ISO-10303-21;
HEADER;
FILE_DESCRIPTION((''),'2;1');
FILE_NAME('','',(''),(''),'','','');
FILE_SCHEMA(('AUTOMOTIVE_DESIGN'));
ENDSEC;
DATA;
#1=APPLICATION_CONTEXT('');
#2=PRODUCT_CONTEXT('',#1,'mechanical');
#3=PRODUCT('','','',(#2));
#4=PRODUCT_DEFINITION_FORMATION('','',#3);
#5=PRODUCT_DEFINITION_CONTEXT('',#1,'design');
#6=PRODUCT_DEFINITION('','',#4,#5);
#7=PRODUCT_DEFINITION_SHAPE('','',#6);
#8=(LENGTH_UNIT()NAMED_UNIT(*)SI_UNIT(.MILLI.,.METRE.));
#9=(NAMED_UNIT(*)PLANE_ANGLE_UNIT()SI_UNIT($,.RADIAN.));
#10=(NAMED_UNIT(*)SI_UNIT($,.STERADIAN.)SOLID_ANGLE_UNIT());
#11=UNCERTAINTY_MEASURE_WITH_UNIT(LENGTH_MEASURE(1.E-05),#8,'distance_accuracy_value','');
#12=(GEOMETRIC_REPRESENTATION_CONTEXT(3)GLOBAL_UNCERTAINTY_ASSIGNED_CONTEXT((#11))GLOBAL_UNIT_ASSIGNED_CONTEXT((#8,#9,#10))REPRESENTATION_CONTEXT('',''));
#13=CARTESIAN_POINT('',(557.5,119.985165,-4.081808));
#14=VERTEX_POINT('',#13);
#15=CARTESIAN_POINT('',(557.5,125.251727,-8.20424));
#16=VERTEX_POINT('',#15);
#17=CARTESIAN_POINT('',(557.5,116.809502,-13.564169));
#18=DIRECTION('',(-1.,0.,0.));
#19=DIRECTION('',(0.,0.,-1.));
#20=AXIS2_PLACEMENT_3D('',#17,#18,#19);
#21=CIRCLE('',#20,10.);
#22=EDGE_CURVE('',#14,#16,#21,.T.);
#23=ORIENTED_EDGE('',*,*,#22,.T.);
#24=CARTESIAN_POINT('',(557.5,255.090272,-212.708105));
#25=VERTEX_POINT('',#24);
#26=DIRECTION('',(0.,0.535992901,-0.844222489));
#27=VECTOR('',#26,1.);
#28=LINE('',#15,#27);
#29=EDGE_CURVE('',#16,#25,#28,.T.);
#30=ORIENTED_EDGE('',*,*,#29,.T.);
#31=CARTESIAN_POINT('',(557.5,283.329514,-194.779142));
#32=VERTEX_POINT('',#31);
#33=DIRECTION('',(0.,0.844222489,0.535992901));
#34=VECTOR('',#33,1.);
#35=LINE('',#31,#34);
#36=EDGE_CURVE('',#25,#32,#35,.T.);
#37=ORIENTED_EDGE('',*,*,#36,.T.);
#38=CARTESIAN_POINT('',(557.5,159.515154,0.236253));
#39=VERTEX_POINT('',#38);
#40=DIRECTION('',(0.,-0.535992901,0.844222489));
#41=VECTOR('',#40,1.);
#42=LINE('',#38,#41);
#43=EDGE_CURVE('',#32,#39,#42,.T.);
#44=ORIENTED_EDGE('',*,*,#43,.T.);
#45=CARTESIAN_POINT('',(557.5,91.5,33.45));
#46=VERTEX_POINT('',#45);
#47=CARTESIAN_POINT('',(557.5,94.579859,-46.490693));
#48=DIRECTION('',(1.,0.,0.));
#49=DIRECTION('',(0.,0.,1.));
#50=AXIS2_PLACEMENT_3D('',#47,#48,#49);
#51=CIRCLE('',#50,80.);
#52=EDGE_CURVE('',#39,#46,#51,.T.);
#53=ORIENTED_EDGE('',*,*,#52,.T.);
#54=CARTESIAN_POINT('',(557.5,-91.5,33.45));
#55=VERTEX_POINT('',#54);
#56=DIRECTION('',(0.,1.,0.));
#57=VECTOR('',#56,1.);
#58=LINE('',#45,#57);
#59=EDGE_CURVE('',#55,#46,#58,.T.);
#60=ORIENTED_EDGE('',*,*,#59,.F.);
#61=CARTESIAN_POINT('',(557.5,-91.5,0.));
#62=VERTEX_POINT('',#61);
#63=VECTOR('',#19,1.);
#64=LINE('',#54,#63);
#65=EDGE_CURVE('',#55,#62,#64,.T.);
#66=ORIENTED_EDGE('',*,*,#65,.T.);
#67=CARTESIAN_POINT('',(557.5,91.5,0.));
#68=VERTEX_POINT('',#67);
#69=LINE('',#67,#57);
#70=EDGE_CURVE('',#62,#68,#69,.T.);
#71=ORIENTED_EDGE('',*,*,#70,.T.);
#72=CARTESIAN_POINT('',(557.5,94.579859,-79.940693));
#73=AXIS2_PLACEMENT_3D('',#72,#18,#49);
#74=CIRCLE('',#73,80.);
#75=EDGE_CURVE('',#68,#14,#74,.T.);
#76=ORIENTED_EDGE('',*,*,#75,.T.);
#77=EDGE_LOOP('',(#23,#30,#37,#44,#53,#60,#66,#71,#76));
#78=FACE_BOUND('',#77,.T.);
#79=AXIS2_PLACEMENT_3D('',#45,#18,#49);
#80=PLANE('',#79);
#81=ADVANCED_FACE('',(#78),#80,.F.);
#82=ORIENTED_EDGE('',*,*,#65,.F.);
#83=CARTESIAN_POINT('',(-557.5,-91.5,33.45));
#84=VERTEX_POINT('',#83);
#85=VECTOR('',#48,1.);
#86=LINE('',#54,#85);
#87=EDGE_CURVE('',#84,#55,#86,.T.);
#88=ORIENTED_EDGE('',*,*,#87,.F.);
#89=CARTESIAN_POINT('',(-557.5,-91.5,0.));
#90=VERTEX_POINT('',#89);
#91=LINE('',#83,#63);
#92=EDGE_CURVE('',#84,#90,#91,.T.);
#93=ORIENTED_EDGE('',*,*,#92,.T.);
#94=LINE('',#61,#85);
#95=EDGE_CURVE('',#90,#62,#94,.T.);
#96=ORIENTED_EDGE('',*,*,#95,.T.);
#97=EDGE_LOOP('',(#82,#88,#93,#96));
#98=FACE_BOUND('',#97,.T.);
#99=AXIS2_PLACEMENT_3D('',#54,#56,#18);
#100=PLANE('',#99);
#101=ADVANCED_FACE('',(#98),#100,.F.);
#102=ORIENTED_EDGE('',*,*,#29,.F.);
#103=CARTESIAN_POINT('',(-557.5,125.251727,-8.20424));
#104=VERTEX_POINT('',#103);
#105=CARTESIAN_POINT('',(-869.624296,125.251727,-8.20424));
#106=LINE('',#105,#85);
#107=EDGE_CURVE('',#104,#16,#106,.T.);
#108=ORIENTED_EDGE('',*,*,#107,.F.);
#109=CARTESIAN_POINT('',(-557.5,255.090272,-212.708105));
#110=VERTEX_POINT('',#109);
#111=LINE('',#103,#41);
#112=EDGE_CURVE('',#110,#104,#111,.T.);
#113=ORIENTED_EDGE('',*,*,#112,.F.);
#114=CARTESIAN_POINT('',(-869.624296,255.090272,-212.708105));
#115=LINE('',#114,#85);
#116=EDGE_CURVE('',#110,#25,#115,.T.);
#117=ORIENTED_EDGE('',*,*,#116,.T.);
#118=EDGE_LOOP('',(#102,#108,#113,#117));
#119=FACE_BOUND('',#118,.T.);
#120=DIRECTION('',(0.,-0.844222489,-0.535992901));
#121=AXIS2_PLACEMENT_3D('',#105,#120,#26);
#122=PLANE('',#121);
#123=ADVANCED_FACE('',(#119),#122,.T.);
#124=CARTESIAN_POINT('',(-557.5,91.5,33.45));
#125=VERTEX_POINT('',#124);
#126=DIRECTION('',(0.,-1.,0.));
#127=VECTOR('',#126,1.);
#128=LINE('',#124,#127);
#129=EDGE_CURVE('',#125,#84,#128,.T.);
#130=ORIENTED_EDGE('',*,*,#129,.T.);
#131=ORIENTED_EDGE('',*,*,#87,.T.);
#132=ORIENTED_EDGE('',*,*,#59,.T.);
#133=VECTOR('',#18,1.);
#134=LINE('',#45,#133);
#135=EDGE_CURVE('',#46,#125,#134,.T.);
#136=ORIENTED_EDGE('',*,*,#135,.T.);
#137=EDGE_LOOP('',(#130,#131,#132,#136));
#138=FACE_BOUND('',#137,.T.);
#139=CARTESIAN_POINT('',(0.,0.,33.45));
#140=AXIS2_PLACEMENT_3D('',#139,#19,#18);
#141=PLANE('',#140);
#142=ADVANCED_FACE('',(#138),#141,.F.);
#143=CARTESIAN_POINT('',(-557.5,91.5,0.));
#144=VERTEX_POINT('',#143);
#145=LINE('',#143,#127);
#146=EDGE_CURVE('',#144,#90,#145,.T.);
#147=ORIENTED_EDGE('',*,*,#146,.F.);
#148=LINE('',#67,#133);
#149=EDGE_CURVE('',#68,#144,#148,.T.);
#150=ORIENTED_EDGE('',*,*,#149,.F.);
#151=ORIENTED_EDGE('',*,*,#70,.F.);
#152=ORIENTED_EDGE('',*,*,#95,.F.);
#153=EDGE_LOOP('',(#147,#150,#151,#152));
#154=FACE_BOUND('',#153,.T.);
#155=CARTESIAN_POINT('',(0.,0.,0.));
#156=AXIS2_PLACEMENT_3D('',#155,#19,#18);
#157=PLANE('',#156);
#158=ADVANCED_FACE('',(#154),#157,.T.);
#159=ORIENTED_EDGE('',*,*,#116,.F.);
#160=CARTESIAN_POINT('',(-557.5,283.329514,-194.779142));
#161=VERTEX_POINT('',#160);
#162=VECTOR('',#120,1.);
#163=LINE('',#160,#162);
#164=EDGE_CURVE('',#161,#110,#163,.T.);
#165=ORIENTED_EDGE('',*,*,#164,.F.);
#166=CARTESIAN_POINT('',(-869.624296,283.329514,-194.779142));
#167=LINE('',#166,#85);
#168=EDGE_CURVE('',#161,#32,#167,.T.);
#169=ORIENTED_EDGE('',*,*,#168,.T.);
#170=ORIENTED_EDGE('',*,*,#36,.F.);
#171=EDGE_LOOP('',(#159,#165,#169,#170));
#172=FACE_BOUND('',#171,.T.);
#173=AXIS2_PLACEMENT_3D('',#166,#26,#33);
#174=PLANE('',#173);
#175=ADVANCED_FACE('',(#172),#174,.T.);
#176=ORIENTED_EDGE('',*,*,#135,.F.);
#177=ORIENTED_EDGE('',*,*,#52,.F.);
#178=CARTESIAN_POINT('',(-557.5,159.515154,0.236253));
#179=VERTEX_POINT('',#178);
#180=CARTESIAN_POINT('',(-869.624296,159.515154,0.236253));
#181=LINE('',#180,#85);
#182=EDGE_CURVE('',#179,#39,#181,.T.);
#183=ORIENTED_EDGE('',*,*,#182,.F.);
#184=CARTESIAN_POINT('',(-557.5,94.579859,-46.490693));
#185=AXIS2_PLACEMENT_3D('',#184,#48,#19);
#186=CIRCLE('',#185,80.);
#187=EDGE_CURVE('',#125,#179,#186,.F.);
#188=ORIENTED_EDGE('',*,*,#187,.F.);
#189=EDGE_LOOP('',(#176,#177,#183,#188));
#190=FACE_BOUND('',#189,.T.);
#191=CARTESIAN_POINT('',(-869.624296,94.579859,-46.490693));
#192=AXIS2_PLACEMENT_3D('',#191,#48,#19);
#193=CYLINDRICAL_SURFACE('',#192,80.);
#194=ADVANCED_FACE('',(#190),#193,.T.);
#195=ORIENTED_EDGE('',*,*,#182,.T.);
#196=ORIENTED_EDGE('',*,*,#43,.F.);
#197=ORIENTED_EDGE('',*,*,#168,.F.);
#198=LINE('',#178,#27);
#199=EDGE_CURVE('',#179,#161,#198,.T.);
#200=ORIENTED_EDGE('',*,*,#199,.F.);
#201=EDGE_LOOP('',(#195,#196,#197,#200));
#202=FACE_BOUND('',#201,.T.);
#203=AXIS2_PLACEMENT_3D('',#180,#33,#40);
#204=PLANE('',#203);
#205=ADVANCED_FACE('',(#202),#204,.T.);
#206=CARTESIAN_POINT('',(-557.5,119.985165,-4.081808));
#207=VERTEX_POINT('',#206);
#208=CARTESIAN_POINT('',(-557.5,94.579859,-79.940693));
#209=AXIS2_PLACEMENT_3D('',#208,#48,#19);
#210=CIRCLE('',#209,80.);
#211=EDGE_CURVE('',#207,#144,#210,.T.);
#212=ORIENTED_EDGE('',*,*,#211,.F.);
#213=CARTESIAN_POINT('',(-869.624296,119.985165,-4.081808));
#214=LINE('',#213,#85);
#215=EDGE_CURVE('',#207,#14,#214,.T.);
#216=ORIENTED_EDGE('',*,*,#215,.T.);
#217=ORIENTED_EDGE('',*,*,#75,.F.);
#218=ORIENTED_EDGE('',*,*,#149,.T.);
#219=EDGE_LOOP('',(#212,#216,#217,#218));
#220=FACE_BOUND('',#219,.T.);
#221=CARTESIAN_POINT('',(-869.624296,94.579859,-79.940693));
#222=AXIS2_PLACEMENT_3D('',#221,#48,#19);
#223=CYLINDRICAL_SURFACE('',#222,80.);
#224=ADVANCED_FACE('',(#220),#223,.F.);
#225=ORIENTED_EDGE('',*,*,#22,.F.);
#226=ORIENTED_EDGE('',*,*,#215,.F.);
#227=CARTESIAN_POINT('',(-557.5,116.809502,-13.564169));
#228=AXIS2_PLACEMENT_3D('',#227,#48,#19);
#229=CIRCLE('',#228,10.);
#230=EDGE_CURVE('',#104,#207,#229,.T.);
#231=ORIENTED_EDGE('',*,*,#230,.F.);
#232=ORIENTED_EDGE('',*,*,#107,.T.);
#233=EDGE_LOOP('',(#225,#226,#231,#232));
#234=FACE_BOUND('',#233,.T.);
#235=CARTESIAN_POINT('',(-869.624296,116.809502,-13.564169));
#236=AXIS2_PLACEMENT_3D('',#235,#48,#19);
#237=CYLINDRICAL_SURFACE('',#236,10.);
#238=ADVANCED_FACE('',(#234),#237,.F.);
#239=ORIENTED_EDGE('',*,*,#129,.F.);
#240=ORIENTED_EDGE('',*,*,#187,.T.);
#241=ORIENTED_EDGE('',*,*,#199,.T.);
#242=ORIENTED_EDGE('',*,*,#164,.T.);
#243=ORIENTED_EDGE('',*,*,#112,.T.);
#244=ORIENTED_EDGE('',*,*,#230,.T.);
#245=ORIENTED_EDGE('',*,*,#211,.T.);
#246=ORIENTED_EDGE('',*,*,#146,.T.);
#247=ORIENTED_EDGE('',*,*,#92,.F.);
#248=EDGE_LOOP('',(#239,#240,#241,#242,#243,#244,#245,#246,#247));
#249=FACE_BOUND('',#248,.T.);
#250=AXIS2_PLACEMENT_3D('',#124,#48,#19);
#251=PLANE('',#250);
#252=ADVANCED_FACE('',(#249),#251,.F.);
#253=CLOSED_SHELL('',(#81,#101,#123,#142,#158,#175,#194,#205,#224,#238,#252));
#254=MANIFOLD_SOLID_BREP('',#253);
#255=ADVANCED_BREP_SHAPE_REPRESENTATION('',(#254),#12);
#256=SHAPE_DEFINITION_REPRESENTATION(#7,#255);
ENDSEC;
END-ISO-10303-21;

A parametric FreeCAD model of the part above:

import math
import FreeCAD as App
import Part
import Sketcher

V = App.Vector


def add_polygon(sketch, points):
    """Adds a closed chain of lines whose ends are joined by coincident constraints."""
    first, n = sketch.GeometryCount, len(points)
    for a, b in zip(points, points[1:] + points[:1]):
        sketch.addGeometry(Part.LineSegment(App.Vector(*a, 0), App.Vector(*b, 0)), False)
    for i in range(n):
        sketch.addConstraint(Sketcher.Constraint("Coincident", first + i, 2, first + (i + 1) % n, 1))

doc = App.newDocument("Part")
body = doc.addObject("PartDesign::Body", "Body")

sketch1 = doc.addObject("Sketcher::SketchObject", "Sketch")
body.addObject(sketch1)
sketch1.AttachmentSupport = (doc.XY_Plane, [""])
sketch1.MapMode = "FlatFace"
add_polygon(sketch1, [(-558, 92), (-558, -92), (558, -92), (558, 92)])
sketch1.addConstraint([
    Sketcher.Constraint("Vertical", 0),
    Sketcher.Constraint("Horizontal", 1),
    Sketcher.Constraint("Vertical", 2),
    Sketcher.Constraint("Horizontal", 3),
    Sketcher.Constraint("Symmetric", 0, 2, 2, 2, -1, 1),
    Sketcher.Constraint("DistanceX", 1, 1, 1, 2, 1115.0),
    Sketcher.Constraint("DistanceY", 0, 2, 0, 1, 183.0),
])
pad1 = doc.addObject("PartDesign::Pad", "Pad")
body.addObject(pad1)
pad1.Profile = sketch1
pad1.Length = 33.45

sketch2 = doc.addObject("Sketcher::SketchObject", "Sketch001")
body.addObject(sketch2)
sketch2.AttachmentSupport = (doc.YZ_Plane, [""])
sketch2.MapMode = "FlatFace"
sketch2.AttachmentOffset = App.Placement(V(0, 0, 557.5), App.Rotation())
sketch2.addGeometry([
    Part.LineSegment(V(283, -195, 0), V(160, 0, 0)),
    Part.ArcOfCircle(Part.Circle(V(95, -46, 0), V(0, 0, 1), 80), math.radians(36), math.radians(92)),
    Part.LineSegment(V(92, 33, 0), V(92, 0, 0)),
    Part.ArcOfCircle(Part.Circle(V(95, -80, 0), V(0, 0, 1), 80), math.radians(71), math.radians(92)),
    Part.ArcOfCircle(Part.Circle(V(117, -14, 0), V(0, 0, 1), 10), math.radians(32), math.radians(71)),
    Part.LineSegment(V(125, -8, 0), V(255, -213, 0)),
    Part.LineSegment(V(255, -213, 0), V(283, -195, 0)),
], False)
sketch2.addConstraint([
    Sketcher.Constraint("Coincident", 0, 2, 1, 1),
    Sketcher.Constraint("Coincident", 1, 2, 2, 1),
    Sketcher.Constraint("Coincident", 2, 2, 3, 2),
    Sketcher.Constraint("Tangent", 3, 1, 4, 2),
    Sketcher.Constraint("Tangent", 4, 1, 5, 1),
    Sketcher.Constraint("Coincident", 5, 2, 6, 1),
    Sketcher.Constraint("Coincident", 6, 2, 0, 1),
    Sketcher.Constraint("Vertical", 2),
    Sketcher.Constraint("Equal", 1, 3),
    Sketcher.Constraint("PointOnObject", 2, 2, -1),
    Sketcher.Constraint("Parallel", 0, 5),
    Sketcher.Constraint("Perpendicular", 5, 6),
    Sketcher.Constraint("Vertical", 1, 3, 3, 3),
    Sketcher.Constraint("Radius", 1, 80.0),
    Sketcher.Constraint("Radius", 4, 10.0),
    Sketcher.Constraint("Distance", 0, 231.0),
    Sketcher.Constraint("DistanceY", 2, 2, 2, 1, 33.45),
    Sketcher.Constraint("DistanceX", -1, 1, 1, 2, 91.5),
    Sketcher.Constraint("Distance", 6, 33.45),
    Sketcher.Constraint("Distance", 5, 242.2393),
    Sketcher.Constraint("DistanceX", -1, 1, 4, 3, 116.809502),
    Sketcher.Constraint("DistanceX", -1, 1, 1, 3, 94.579859),
])
pad2 = doc.addObject("PartDesign::Pad", "Pad001")
body.addObject(pad2)
pad2.Profile = sketch2
pad2.Length = 1115
pad2.Reversed = True

doc.recompute()
